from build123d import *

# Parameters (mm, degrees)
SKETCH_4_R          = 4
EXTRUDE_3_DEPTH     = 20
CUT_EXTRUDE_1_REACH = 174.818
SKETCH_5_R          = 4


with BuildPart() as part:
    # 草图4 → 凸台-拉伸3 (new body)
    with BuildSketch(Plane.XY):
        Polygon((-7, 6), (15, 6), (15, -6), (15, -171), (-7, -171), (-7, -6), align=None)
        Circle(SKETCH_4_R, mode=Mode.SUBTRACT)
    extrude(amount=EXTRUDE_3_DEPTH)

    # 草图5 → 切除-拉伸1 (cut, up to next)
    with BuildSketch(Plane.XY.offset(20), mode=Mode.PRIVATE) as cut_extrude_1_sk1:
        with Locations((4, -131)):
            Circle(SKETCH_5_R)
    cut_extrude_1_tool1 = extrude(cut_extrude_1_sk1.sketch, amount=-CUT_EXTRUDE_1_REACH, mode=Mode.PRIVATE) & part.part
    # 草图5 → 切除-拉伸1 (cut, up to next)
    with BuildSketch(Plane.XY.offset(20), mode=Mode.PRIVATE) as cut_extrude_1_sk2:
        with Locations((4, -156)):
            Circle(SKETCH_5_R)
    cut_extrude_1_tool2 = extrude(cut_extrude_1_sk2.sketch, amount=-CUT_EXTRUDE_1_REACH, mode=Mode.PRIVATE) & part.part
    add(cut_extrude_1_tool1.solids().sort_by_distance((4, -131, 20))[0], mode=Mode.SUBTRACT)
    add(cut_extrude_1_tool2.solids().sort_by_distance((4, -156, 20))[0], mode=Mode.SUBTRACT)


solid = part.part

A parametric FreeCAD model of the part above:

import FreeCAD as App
import Part
import Sketcher

doc = App.newDocument("Part")
body = doc.addObject("PartDesign::Body", "Body")

# Sketch on XY plane
sketch1 = doc.addObject("Sketcher::SketchObject", "Sketch")
body.addObject(sketch1)
sketch1.AttachmentSupport = (doc.XY_Plane, [""])
sketch1.MapMode = "FlatFace"
sketch1.addGeometry(Part.LineSegment(App.Vector(15, 6, 0), App.Vector(-7, 6, 0)), False)
sketch1.addGeometry(Part.LineSegment(App.Vector(-7, 6, 0), App.Vector(-7, -171, 0)), False)
sketch1.addGeometry(Part.LineSegment(App.Vector(-7, -171, 0), App.Vector(15, -171, 0)), False)
sketch1.addGeometry(Part.LineSegment(App.Vector(15, -171, 0), App.Vector(15, 6, 0)), False)
sketch1.addGeometry(Part.Circle(App.Vector(0, 0, 0), App.Vector(0, 0, 1), 4), False)
sketch1.addConstraint(Sketcher.Constraint("Coincident", 0, 2, 1, 1))
sketch1.addConstraint(Sketcher.Constraint("Coincident", 1, 2, 2, 1))
sketch1.addConstraint(Sketcher.Constraint("Coincident", 2, 2, 3, 1))
sketch1.addConstraint(Sketcher.Constraint("Coincident", 3, 2, 0, 1))
sketch1.addConstraint(Sketcher.Constraint("Horizontal", 0))
sketch1.addConstraint(Sketcher.Constraint("Vertical", 1))
sketch1.addConstraint(Sketcher.Constraint("Horizontal", 2))
sketch1.addConstraint(Sketcher.Constraint("Vertical", 3))
sketch1.addConstraint(Sketcher.Constraint("Coincident", 4, 3, -1, 1))
sketch1.addConstraint(Sketcher.Constraint("Diameter", 4, 8.0))
sketch1.addConstraint(Sketcher.Constraint("DistanceX", 0, 2, 0, 1, 22.0))
sketch1.addConstraint(Sketcher.Constraint("DistanceY", 1, 2, 1, 1, 177.0))
sketch1.addConstraint(Sketcher.Constraint("DistanceX", 0, 2, -1, 1, 7.0))
sketch1.addConstraint(Sketcher.Constraint("DistanceY", -1, 1, 0, 2, 6.0))
pad1 = doc.addObject("PartDesign::Pad", "Pad")
body.addObject(pad1)
pad1.Profile = sketch1
pad1.Length = 20

# Sketch on XY plane
sketch2 = doc.addObject("Sketcher::SketchObject", "Sketch001")
body.addObject(sketch2)
sketch2.AttachmentSupport = (doc.XY_Plane, [""])
sketch2.MapMode = "FlatFace"
sketch2.AttachmentOffset = App.Placement(App.Vector(0, 0, 20), App.Rotation())
sketch2.addGeometry(Part.Circle(App.Vector(4, -131, 0), App.Vector(0, 0, 1), 4), False)
sketch2.addConstraint(Sketcher.Constraint("Diameter", 0, 8.0))
sketch2.addConstraint(Sketcher.Constraint("DistanceX", -1, 1, 0, 3, 4.0))
sketch2.addConstraint(Sketcher.Constraint("DistanceY", 0, 3, -1, 1, 131.0))
pocket1 = doc.addObject("PartDesign::Pocket", "Pocket")
body.addObject(pocket1)
pocket1.Profile = sketch2
pocket1.Type = "UpToFirst"

# Sketch on XY plane
sketch3 = doc.addObject("Sketcher::SketchObject", "Sketch002")
body.addObject(sketch3)
sketch3.AttachmentSupport = (doc.XY_Plane, [""])
sketch3.MapMode = "FlatFace"
sketch3.AttachmentOffset = App.Placement(App.Vector(0, 0, 20), App.Rotation())
sketch3.addGeometry(Part.Circle(App.Vector(4, -156, 0), App.Vector(0, 0, 1), 4), False)
sketch3.addConstraint(Sketcher.Constraint("Diameter", 0, 8.0))
sketch3.addConstraint(Sketcher.Constraint("DistanceX", -1, 1, 0, 3, 4.0))
sketch3.addConstraint(Sketcher.Constraint("DistanceY", 0, 3, -1, 1, 156.0))
pocket2 = doc.addObject("PartDesign::Pocket", "Pocket001")
body.addObject(pocket2)
pocket2.Profile = sketch3
pocket2.Type = "UpToFirst"

doc.recompute()
